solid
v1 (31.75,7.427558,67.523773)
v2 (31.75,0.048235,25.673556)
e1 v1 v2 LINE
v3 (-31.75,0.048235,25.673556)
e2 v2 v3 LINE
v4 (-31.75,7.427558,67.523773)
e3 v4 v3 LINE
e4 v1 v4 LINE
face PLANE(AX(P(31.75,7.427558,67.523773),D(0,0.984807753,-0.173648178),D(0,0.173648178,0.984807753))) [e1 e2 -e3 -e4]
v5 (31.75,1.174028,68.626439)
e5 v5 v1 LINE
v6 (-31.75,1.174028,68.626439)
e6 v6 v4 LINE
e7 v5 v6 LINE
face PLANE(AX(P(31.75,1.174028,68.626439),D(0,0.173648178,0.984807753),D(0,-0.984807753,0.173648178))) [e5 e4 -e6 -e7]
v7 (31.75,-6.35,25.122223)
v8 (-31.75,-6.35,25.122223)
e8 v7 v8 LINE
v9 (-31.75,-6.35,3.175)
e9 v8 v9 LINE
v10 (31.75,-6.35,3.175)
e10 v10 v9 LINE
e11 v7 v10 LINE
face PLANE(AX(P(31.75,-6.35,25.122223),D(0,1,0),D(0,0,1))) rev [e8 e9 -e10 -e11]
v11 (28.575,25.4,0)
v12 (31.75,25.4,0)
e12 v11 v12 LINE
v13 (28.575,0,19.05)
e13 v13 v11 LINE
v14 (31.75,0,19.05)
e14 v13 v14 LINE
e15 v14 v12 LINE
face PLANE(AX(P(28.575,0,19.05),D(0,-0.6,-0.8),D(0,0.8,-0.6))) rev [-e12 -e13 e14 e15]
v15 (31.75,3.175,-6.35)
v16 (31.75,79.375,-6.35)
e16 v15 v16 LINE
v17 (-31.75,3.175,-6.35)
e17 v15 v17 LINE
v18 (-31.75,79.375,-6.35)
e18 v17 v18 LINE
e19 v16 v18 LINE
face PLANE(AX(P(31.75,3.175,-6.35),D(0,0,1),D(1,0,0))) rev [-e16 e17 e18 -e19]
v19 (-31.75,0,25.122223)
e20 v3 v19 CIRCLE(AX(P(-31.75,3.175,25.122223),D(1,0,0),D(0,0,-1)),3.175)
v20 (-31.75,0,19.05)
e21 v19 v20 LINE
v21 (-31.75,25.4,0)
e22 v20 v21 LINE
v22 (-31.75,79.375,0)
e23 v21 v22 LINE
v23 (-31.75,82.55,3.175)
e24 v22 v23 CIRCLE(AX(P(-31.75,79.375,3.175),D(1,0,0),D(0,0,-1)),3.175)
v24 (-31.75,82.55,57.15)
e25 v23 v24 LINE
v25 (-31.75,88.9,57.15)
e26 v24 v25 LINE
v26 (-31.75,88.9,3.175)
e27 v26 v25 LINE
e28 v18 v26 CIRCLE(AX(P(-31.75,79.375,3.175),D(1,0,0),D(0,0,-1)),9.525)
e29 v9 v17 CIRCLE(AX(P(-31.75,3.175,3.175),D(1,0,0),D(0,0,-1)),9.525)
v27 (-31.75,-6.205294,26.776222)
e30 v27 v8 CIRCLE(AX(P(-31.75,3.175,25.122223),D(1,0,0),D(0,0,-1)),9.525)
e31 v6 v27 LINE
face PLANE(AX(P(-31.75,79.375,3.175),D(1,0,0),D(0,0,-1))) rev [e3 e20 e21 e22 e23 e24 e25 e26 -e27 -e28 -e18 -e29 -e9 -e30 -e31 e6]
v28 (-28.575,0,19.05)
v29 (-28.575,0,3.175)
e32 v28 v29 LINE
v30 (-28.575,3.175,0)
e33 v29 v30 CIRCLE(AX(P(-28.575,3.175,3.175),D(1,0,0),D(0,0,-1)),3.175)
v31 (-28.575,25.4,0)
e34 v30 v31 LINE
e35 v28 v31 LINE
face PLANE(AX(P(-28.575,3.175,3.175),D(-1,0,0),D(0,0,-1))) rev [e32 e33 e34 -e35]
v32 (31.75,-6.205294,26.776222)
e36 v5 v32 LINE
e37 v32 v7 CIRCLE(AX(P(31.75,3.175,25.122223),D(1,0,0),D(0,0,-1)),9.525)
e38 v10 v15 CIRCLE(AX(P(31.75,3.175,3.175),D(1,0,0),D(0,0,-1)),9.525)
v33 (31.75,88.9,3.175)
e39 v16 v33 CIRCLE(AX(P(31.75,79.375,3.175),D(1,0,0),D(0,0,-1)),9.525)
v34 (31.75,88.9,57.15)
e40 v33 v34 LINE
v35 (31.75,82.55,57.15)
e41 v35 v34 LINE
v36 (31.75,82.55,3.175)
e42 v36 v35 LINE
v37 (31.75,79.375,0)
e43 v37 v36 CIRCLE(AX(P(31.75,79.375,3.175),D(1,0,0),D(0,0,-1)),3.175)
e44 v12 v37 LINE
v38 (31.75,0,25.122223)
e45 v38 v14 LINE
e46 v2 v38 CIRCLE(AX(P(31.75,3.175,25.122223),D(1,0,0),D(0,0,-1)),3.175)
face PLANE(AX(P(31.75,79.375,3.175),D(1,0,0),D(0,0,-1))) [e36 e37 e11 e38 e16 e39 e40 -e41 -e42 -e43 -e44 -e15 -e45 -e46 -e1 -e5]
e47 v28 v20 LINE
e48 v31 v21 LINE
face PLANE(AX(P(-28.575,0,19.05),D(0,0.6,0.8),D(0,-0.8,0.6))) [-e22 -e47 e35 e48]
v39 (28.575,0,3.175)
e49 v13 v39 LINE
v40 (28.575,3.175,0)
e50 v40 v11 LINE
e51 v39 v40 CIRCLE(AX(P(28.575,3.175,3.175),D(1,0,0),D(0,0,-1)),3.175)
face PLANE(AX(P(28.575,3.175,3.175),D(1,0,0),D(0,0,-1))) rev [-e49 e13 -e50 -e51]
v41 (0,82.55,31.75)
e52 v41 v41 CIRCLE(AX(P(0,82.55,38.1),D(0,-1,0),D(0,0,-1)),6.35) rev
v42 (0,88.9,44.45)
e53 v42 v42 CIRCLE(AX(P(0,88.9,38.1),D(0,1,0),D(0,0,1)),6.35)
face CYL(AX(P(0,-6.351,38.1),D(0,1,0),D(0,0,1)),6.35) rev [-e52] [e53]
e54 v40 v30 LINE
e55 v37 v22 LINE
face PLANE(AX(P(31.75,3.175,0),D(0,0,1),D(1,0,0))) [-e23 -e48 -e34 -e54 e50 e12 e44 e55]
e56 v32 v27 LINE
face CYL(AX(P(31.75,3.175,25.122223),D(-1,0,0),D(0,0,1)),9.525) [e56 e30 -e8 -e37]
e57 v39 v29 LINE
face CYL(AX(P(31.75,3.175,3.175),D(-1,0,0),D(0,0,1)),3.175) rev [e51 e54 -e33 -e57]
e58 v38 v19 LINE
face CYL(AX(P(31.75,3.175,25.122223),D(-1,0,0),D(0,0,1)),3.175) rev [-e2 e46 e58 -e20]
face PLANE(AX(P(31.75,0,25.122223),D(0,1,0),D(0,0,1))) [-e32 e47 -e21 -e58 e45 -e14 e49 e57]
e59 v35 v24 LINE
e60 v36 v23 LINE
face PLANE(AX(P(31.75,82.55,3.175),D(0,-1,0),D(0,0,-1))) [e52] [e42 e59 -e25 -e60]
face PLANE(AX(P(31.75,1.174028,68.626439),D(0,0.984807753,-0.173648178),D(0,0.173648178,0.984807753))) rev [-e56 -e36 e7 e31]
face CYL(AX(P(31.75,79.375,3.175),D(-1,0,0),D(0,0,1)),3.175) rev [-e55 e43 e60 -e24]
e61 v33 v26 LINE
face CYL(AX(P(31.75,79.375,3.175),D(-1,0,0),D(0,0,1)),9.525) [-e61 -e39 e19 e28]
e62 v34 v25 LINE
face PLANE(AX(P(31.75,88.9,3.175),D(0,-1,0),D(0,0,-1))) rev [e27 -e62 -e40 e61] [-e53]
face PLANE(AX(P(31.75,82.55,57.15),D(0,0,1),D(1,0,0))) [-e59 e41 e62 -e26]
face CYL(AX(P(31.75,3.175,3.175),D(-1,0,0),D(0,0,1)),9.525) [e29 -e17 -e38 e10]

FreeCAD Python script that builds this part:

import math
import FreeCAD as App
import Part
import Sketcher
from FreeCAD import Vector
Q = App.Units.Quantity

doc = App.newDocument("Part")
body = doc.addObject("PartDesign::Body", "Body")

# Sketch on YZ plane
sketch1 = body.newObject("Sketcher::SketchObject", "Sketch")
sketch1.AttachmentSupport = (doc.getObject("YZ_Plane"), [""])
sketch1.MapMode = "FlatFace"
sketch1.addGeometry(Part.LineSegment(Vector(0.048235, 25.673556, 0), Vector(7.427558, 67.523773, 0)), False)
sketch1.addGeometry(Part.LineSegment(Vector(7.427558, 67.523773, 0), Vector(1.174028, 68.626439, 0)), False)
sketch1.addGeometry(Part.LineSegment(Vector(1.174028, 68.626439, 0), Vector(-6.205294, 26.776222, 0)), False)
sketch1.addGeometry(Part.ArcOfCircle(Part.Circle(Vector(3.175, 25.122223, 0), Vector(0, 0, 1), 9.525), math.radians(170), math.radians(180)), False)
sketch1.addGeometry(Part.LineSegment(Vector(-6.35, 25.122223, 0), Vector(-6.35, 3.175, 0)), False)
sketch1.addGeometry(Part.ArcOfCircle(Part.Circle(Vector(3.175, 3.175, 0), Vector(0, 0, 1), 9.525), math.radians(180), math.radians(270)), False)
sketch1.addGeometry(Part.LineSegment(Vector(3.175, -6.35, 0), Vector(79.375, -6.35, 0)), False)
sketch1.addGeometry(Part.ArcOfCircle(Part.Circle(Vector(79.375, 3.175, 0), Vector(0, 0, 1), 9.525), math.radians(-90), math.radians(0)), False)
sketch1.addGeometry(Part.LineSegment(Vector(88.9, 3.175, 0), Vector(88.9, 57.15, 0)), False)
sketch1.addGeometry(Part.LineSegment(Vector(88.9, 57.15, 0), Vector(82.55, 57.15, 0)), False)
sketch1.addGeometry(Part.LineSegment(Vector(82.55, 57.15, 0), Vector(82.55, 3.175, 0)), False)
sketch1.addGeometry(Part.ArcOfCircle(Part.Circle(Vector(79.375, 3.175, 0), Vector(0, 0, 1), 3.175), math.radians(-90), math.radians(0)), False)
sketch1.addGeometry(Part.LineSegment(Vector(79.375, 0, 0), Vector(3.175, 0, 0)), False)
sketch1.addGeometry(Part.ArcOfCircle(Part.Circle(Vector(3.175, 3.175, 0), Vector(0, 0, 1), 3.175), math.radians(-180), math.radians(-90)), False)
sketch1.addGeometry(Part.LineSegment(Vector(0, 3.175, 0), Vector(0, 25.122223, 0)), False)
sketch1.addGeometry(Part.ArcOfCircle(Part.Circle(Vector(3.175, 25.122223, 0), Vector(0, 0, 1), 3.175), math.radians(170), math.radians(180)), False)
sketch1.addConstraint(Sketcher.Constraint("Coincident", 0, 2, 1, 1))
sketch1.addConstraint(Sketcher.Constraint("Coincident", 1, 2, 2, 1))
sketch1.addConstraint(Sketcher.Constraint("Tangent", 2, 2, 3, 1))
sketch1.addConstraint(Sketcher.Constraint("Tangent", 3, 2, 4, 1))
sketch1.addConstraint(Sketcher.Constraint("Tangent", 4, 2, 5, 1))
sketch1.addConstraint(Sketcher.Constraint("Tangent", 5, 2, 6, 1))
sketch1.addConstraint(Sketcher.Constraint("Tangent", 6, 2, 7, 1))
sketch1.addConstraint(Sketcher.Constraint("Tangent", 7, 2, 8, 1))
sketch1.addConstraint(Sketcher.Constraint("Coincident", 8, 2, 9, 1))
sketch1.addConstraint(Sketcher.Constraint("Coincident", 9, 2, 10, 1))
sketch1.addConstraint(Sketcher.Constraint("Tangent", 10, 2, 11, 2))
sketch1.addConstraint(Sketcher.Constraint("Tangent", 11, 1, 12, 1))
sketch1.addConstraint(Sketcher.Constraint("Tangent", 12, 2, 13, 2))
sketch1.addConstraint(Sketcher.Constraint("Tangent", 13, 1, 14, 1))
sketch1.addConstraint(Sketcher.Constraint("Tangent", 14, 2, 15, 2))
sketch1.addConstraint(Sketcher.Constraint("Tangent", 15, 1, 0, 1))
sketch1.addConstraint(Sketcher.Constraint("Vertical", 4))
sketch1.addConstraint(Sketcher.Constraint("Horizontal", 6))
sketch1.addConstraint(Sketcher.Constraint("Vertical", 8))
sketch1.addConstraint(Sketcher.Constraint("Horizontal", 9))
sketch1.addConstraint(Sketcher.Constraint("Vertical", 10))
sketch1.addConstraint(Sketcher.Constraint("Horizontal", 12))
sketch1.addConstraint(Sketcher.Constraint("Vertical", 14))
sketch1.addConstraint(Sketcher.Constraint("Coincident", 11, 3, 7, 3))
sketch1.addConstraint(Sketcher.Constraint("Coincident", 13, 3, 5, 3))
sketch1.addConstraint(Sketcher.Constraint("Coincident", 15, 3, 3, 3))
sketch1.addConstraint(Sketcher.Constraint("Equal", 3, 5))
sketch1.addConstraint(Sketcher.Constraint("Equal", 5, 7))
sketch1.addConstraint(Sketcher.Constraint("PointOnObject", 11, 1, -1))
sketch1.addConstraint(Sketcher.Constraint("PointOnObject", 13, 1, -2))
sketch1.addConstraint(Sketcher.Constraint("Perpendicular", 0, 1))
sketch1.addConstraint(Sketcher.Constraint("Perpendicular", 1, 2))
sketch1.addConstraint(Sketcher.Constraint("DistanceX", 6, 1, 6, 2, Q("3 in")))
sketch1.addConstraint(Sketcher.Constraint("Angle", 0, Q("80 deg")))
sketch1.addConstraint(Sketcher.Constraint("Radius", 3, Q("0.375 in")))
sketch1.addConstraint(Sketcher.Constraint("Radius", 11, Q("0.125 in")))
sketch1.addConstraint(Sketcher.Constraint("DistanceY", 6, 2, 8, 2, Q("2.5 in")))
sketch1.addConstraint(Sketcher.Constraint("DistanceY", 4, 2, 4, 1, Q("21.947223 mm")))
sketch1.addConstraint(Sketcher.Constraint("DistanceX", -1, 1, 1, 2, Q("1.174028 mm")))
pad1 = body.newObject("PartDesign::Pad", "Pad")
pad1.Profile = sketch1
pad1.Length = Q("2.5 in")
pad1.Midplane = True

# Sketch on XZ plane
sketch2 = body.newObject("Sketcher::SketchObject", "Sketch001")
sketch2.AttachmentSupport = (doc.getObject("XZ_Plane"), [""])
sketch2.MapMode = "FlatFace"
sketch2.AttachmentOffset = App.Placement(Vector(0, 0, -3.5 * 25.4), App.Rotation())
sketch2.addGeometry(Part.Circle(Vector(0, 38.1, 0), Vector(0, 0, 1), 6.35), False)
sketch2.addConstraint(Sketcher.Constraint("PointOnObject", 0, 3, -2))
sketch2.addConstraint(Sketcher.Constraint("Diameter", 0, Q("0.5 in")))
sketch2.addConstraint(Sketcher.Constraint("DistanceY", -1, 1, 0, 3, Q("1.5 in")))
pocket1 = body.newObject("PartDesign::Pocket", "Pocket")
pocket1.Profile = sketch2
pocket1.Type = "UpToFirst"
pocket1.Reversed = True

# Sketch on YZ plane
sketch3 = body.newObject("Sketcher::SketchObject", "Sketch002")
sketch3.AttachmentSupport = (doc.getObject("YZ_Plane"), [""])
sketch3.MapMode = "FlatFace"
sketch3.AttachmentOffset = App.Placement(Vector(0, 0, 1.25 * 25.4), App.Rotation())
sketch3.addGeometry(Part.LineSegment(Vector(0, 19.05, 0), Vector(0, 3.175, 0)), False)
sketch3.addGeometry(Part.ArcOfCircle(Part.Circle(Vector(3.175, 3.175, 0), Vector(0, 0, 1), 3.175), math.radians(-180), math.radians(-90)), False)
sketch3.addGeometry(Part.LineSegment(Vector(3.175, 0, 0), Vector(25.4, 0, 0)), False)
sketch3.addGeometry(Part.LineSegment(Vector(25.4, 0, 0), Vector(0, 19.05, 0)), False)
sketch3.addConstraint(Sketcher.Constraint("Tangent", 0, 2, 1, 1))
sketch3.addConstraint(Sketcher.Constraint("Tangent", 1, 2, 2, 1))
sketch3.addConstraint(Sketcher.Constraint("Coincident", 2, 2, 3, 1))
sketch3.addConstraint(Sketcher.Constraint("Coincident", 3, 2, 0, 1))
sketch3.addConstraint(Sketcher.Constraint("Vertical", 0))
sketch3.addConstraint(Sketcher.Constraint("Horizontal", 2))
sketch3.addConstraint(Sketcher.Constraint("PointOnObject", 0, 2, -2))
sketch3.addConstraint(Sketcher.Constraint("PointOnObject", 1, 2, -1))
sketch3.addConstraint(Sketcher.Constraint("DistanceX", -1, 1, 2, 2, Q("1 in")))
sketch3.addConstraint(Sketcher.Constraint("Radius", 1, Q("0.125 in")))
sketch3.addConstraint(Sketcher.Constraint("Distance", 3, Q("1.25 in")))
pad2 = body.newObject("PartDesign::Pad", "Pad001")
pad2.Profile = sketch3
pad2.Length = Q("0.125 in")
pad2.Reversed = True
doc.recompute()

mirrored = body.newObject("PartDesign::Mirrored", "Mirrored")
mirrored.Originals = [pad2]
mirrored.MirrorPlane = (doc.getObject("YZ_Plane"), [""])
body.Tip = mirrored

doc.recompute()
